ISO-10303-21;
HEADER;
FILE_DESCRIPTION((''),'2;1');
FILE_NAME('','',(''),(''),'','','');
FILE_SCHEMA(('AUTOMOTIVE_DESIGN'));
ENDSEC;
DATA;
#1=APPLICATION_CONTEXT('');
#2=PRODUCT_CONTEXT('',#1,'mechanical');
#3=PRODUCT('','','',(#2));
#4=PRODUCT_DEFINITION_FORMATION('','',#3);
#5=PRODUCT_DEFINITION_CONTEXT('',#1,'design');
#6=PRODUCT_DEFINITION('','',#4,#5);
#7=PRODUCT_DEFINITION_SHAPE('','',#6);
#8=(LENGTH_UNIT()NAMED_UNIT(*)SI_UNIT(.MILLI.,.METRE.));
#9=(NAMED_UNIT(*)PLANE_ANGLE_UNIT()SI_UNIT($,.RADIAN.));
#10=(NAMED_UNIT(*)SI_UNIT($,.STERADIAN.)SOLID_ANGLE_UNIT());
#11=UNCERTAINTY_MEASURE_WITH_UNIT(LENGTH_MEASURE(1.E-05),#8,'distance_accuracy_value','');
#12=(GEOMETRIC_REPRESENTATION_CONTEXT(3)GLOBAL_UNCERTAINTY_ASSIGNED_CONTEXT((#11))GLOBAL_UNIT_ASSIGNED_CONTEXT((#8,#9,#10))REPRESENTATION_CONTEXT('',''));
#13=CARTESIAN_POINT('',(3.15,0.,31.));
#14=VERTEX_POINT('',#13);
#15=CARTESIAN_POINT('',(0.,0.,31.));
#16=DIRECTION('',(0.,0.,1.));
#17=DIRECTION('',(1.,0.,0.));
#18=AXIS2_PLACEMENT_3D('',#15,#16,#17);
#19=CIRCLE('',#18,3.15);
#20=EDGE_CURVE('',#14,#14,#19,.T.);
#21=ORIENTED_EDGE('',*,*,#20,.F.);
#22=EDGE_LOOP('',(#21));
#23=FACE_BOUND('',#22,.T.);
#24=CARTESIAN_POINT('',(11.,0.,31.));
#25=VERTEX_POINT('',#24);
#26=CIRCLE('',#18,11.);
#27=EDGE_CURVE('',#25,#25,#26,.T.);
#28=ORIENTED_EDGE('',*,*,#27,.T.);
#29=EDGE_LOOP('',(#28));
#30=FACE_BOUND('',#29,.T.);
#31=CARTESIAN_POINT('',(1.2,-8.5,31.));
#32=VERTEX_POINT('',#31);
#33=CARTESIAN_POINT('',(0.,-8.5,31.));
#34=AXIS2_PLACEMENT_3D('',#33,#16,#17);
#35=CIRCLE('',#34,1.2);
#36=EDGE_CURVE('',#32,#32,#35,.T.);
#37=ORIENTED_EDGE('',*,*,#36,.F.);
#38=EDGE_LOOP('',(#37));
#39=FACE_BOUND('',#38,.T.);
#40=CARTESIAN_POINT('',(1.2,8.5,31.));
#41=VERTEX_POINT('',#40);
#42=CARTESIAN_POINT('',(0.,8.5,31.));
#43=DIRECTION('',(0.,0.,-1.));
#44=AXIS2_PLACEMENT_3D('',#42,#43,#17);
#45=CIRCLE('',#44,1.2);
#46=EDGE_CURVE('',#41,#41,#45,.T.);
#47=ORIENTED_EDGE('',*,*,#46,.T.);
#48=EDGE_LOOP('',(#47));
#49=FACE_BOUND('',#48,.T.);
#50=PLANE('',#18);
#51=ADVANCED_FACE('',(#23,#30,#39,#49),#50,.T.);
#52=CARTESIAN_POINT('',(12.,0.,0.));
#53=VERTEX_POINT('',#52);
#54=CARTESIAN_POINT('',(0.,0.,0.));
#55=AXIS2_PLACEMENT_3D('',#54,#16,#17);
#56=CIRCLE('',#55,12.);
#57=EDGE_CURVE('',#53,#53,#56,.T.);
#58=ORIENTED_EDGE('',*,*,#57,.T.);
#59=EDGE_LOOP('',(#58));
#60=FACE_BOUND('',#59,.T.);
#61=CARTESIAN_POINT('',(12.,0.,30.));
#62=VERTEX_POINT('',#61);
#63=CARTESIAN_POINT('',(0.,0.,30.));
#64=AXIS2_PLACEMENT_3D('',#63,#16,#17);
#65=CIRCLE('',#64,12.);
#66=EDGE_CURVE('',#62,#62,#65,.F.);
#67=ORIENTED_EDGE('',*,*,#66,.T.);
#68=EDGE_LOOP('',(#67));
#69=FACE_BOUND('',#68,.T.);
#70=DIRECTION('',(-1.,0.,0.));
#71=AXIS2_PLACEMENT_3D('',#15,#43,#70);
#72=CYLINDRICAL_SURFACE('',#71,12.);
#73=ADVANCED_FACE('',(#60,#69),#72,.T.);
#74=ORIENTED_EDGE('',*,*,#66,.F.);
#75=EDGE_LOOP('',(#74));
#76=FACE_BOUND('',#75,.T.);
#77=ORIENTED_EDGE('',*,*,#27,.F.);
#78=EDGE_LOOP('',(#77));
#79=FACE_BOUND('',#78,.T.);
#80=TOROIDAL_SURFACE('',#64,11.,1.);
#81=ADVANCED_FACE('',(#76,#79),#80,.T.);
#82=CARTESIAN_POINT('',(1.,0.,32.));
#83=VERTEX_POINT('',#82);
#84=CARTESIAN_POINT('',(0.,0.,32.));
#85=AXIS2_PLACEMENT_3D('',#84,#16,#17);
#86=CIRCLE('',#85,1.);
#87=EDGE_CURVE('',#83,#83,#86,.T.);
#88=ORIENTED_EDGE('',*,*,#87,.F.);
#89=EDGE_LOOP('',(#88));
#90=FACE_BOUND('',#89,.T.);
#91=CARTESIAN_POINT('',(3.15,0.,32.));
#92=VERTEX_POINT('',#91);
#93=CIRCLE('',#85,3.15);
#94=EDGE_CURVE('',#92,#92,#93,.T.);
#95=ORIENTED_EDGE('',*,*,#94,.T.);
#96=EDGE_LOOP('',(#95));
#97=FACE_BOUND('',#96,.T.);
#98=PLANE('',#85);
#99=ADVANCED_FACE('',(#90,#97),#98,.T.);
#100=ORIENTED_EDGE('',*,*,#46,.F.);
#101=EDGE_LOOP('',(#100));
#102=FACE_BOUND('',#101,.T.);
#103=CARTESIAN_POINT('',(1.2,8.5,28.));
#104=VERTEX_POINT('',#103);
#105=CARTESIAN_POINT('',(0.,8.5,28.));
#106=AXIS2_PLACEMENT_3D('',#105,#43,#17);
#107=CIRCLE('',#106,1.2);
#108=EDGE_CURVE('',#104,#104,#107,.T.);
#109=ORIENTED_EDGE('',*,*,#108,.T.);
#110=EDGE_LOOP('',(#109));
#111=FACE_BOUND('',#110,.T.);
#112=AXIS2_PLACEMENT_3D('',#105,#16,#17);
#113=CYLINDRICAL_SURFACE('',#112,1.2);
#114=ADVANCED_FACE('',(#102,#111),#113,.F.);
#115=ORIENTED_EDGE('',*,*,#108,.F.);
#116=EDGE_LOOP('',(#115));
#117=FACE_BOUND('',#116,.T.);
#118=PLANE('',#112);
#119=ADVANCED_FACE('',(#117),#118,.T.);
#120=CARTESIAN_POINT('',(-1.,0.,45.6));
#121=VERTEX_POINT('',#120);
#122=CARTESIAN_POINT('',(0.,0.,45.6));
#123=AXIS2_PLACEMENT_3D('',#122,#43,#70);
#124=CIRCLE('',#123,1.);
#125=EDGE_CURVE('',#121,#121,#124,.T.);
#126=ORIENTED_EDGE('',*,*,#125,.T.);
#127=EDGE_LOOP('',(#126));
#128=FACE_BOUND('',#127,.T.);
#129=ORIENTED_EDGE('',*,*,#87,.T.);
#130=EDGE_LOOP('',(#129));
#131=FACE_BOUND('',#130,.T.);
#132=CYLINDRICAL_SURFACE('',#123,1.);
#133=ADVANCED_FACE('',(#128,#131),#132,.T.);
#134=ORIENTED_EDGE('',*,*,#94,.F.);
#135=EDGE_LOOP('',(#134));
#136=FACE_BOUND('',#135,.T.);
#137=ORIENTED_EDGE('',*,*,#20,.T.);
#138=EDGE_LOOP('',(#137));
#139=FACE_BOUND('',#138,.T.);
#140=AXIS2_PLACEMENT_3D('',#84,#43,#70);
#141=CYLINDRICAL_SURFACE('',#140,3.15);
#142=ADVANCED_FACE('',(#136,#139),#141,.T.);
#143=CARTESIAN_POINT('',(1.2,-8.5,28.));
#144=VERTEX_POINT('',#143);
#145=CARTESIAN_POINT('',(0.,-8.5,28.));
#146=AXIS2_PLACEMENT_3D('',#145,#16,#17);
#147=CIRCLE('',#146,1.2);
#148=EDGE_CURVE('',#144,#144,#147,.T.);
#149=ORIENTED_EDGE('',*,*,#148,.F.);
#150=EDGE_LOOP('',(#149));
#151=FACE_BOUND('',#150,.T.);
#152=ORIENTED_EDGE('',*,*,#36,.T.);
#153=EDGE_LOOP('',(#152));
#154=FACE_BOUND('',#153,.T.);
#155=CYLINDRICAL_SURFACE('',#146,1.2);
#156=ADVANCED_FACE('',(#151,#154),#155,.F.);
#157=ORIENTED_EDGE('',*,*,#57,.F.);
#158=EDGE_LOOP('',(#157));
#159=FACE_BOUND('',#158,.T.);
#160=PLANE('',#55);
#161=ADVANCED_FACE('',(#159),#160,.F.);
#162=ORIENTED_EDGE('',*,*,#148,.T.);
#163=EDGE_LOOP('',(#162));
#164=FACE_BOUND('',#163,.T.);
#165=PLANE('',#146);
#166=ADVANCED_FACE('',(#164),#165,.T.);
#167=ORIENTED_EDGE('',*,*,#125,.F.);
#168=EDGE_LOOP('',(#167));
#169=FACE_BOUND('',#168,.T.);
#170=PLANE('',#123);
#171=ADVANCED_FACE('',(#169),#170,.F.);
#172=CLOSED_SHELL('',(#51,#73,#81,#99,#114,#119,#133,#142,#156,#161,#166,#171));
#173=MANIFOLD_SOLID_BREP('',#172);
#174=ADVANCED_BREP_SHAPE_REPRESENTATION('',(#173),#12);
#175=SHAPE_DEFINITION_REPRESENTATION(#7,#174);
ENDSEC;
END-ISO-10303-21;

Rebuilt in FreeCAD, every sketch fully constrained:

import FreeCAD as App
import Part
import Sketcher


def edges_at(feature, points):
    """Names of the edges that pass closest to the given points."""
    edges = feature.Shape.Edges
    near = lambda p: min(range(len(edges)), key=lambda i: edges[i].distToShape(Part.Vertex(*p))[0])
    return sorted({f"Edge{near(p) + 1}" for p in points})

doc = App.newDocument("Part")
params = doc.addObject("Spreadsheet::Sheet", "Params")
for row, (alias, value) in enumerate([
    ("sketch1_diameter", "24 mm"),
    ("pad1_length", "31 mm"),
    ("fillet_radius", "1 mm"),
    ("sketch2_diameter", "6.3 mm"),
    ("pad2_length", "1 mm"),
    ("sketch3_diameter", "2 mm"),
    ("pad3_length", "45.6 mm"),
    ("sketch4_diameter", "2.4 mm"),
    ("pocket1_length", "3 mm"),
], start=1):
    params.set(f"A{row}", alias)
    params.set(f"B{row}", "=" + value)
    params.setAlias(f"B{row}", alias)

body = doc.addObject("PartDesign::Body", "Body")

# Sketch on XY plane
sketch1 = body.newObject("Sketcher::SketchObject", "Sketch")
sketch1.AttachmentSupport = (doc.getObject("XY_Plane"), [""])
sketch1.MapMode = "FlatFace"
sketch1.addGeometry(Part.Circle(App.Vector(0, 0, 0), App.Vector(0, 0, 1), 12), False)
sketch1.addConstraint([
    Sketcher.Constraint("Coincident", 0, 3, -1, 1),
    Sketcher.Constraint("Diameter", 0, 24.0),
])
sketch1.setExpression("Constraints[1]", "Params.sketch1_diameter")
pad1 = body.newObject("PartDesign::Pad", "Pad")
pad1.Profile = sketch1
pad1.setExpression("Length", "Params.pad1_length")
doc.recompute()

fillet = body.newObject("PartDesign::Fillet", "Fillet")
fillet.Base = (pad1, edges_at(pad1, [(-12, 0, 31)]))
fillet.setExpression("Radius", "Params.fillet_radius")

# Sketch on XY plane
sketch2 = body.newObject("Sketcher::SketchObject", "Sketch001")
sketch2.AttachmentSupport = (doc.getObject("XY_Plane"), [""])
sketch2.MapMode = "FlatFace"
sketch2.AttachmentOffset = App.Placement(App.Vector(0, 0, 31), App.Rotation())
sketch2.addGeometry(Part.Circle(App.Vector(0, 0, 0), App.Vector(0, 0, 1), 3.1), False)
sketch2.addConstraint([
    Sketcher.Constraint("Coincident", 0, 3, -1, 1),
    Sketcher.Constraint("Diameter", 0, 6.3),
])
sketch2.setExpression("Constraints[1]", "Params.sketch2_diameter")
pad2 = body.newObject("PartDesign::Pad", "Pad001")
pad2.Profile = sketch2
pad2.setExpression("Length", "Params.pad2_length")

# Sketch on XY plane
sketch3 = body.newObject("Sketcher::SketchObject", "Sketch002")
sketch3.AttachmentSupport = (doc.getObject("XY_Plane"), [""])
sketch3.MapMode = "FlatFace"
sketch3.addGeometry(Part.Circle(App.Vector(0, 0, 0), App.Vector(0, 0, 1), 1), False)
sketch3.addConstraint([
    Sketcher.Constraint("Coincident", 0, 3, -1, 1),
    Sketcher.Constraint("Diameter", 0, 2.0),
])
sketch3.setExpression("Constraints[1]", "Params.sketch3_diameter")
pad3 = body.newObject("PartDesign::Pad", "Pad002")
pad3.Profile = sketch3
pad3.setExpression("Length", "Params.pad3_length")

# Sketch on XY plane
sketch4 = body.newObject("Sketcher::SketchObject", "Sketch003")
sketch4.AttachmentSupport = (doc.getObject("XY_Plane"), [""])
sketch4.MapMode = "FlatFace"
sketch4.AttachmentOffset = App.Placement(App.Vector(0, 0, 31), App.Rotation())
sketch4.addGeometry(Part.Circle(App.Vector(0, -8.5, 0), App.Vector(0, 0, 1), 1.2), False)
sketch4.addConstraint([
    Sketcher.Constraint("PointOnObject", 0, 3, -2),
    Sketcher.Constraint("Diameter", 0, 2.4),
    Sketcher.Constraint("DistanceY", 0, 3, -1, 1, 8.5),
])
sketch4.setExpression("Constraints[1]", "Params.sketch4_diameter")
pocket1 = body.newObject("PartDesign::Pocket", "Pocket")
pocket1.Profile = sketch4
pocket1.setExpression("Length", "Params.pocket1_length")
doc.recompute()

mirrored = body.newObject("PartDesign::Mirrored", "Mirrored")
mirrored.Originals = [pocket1]
mirrored.MirrorPlane = (doc.getObject("XZ_Plane"), [""])
body.Tip = mirrored

doc.recompute()
